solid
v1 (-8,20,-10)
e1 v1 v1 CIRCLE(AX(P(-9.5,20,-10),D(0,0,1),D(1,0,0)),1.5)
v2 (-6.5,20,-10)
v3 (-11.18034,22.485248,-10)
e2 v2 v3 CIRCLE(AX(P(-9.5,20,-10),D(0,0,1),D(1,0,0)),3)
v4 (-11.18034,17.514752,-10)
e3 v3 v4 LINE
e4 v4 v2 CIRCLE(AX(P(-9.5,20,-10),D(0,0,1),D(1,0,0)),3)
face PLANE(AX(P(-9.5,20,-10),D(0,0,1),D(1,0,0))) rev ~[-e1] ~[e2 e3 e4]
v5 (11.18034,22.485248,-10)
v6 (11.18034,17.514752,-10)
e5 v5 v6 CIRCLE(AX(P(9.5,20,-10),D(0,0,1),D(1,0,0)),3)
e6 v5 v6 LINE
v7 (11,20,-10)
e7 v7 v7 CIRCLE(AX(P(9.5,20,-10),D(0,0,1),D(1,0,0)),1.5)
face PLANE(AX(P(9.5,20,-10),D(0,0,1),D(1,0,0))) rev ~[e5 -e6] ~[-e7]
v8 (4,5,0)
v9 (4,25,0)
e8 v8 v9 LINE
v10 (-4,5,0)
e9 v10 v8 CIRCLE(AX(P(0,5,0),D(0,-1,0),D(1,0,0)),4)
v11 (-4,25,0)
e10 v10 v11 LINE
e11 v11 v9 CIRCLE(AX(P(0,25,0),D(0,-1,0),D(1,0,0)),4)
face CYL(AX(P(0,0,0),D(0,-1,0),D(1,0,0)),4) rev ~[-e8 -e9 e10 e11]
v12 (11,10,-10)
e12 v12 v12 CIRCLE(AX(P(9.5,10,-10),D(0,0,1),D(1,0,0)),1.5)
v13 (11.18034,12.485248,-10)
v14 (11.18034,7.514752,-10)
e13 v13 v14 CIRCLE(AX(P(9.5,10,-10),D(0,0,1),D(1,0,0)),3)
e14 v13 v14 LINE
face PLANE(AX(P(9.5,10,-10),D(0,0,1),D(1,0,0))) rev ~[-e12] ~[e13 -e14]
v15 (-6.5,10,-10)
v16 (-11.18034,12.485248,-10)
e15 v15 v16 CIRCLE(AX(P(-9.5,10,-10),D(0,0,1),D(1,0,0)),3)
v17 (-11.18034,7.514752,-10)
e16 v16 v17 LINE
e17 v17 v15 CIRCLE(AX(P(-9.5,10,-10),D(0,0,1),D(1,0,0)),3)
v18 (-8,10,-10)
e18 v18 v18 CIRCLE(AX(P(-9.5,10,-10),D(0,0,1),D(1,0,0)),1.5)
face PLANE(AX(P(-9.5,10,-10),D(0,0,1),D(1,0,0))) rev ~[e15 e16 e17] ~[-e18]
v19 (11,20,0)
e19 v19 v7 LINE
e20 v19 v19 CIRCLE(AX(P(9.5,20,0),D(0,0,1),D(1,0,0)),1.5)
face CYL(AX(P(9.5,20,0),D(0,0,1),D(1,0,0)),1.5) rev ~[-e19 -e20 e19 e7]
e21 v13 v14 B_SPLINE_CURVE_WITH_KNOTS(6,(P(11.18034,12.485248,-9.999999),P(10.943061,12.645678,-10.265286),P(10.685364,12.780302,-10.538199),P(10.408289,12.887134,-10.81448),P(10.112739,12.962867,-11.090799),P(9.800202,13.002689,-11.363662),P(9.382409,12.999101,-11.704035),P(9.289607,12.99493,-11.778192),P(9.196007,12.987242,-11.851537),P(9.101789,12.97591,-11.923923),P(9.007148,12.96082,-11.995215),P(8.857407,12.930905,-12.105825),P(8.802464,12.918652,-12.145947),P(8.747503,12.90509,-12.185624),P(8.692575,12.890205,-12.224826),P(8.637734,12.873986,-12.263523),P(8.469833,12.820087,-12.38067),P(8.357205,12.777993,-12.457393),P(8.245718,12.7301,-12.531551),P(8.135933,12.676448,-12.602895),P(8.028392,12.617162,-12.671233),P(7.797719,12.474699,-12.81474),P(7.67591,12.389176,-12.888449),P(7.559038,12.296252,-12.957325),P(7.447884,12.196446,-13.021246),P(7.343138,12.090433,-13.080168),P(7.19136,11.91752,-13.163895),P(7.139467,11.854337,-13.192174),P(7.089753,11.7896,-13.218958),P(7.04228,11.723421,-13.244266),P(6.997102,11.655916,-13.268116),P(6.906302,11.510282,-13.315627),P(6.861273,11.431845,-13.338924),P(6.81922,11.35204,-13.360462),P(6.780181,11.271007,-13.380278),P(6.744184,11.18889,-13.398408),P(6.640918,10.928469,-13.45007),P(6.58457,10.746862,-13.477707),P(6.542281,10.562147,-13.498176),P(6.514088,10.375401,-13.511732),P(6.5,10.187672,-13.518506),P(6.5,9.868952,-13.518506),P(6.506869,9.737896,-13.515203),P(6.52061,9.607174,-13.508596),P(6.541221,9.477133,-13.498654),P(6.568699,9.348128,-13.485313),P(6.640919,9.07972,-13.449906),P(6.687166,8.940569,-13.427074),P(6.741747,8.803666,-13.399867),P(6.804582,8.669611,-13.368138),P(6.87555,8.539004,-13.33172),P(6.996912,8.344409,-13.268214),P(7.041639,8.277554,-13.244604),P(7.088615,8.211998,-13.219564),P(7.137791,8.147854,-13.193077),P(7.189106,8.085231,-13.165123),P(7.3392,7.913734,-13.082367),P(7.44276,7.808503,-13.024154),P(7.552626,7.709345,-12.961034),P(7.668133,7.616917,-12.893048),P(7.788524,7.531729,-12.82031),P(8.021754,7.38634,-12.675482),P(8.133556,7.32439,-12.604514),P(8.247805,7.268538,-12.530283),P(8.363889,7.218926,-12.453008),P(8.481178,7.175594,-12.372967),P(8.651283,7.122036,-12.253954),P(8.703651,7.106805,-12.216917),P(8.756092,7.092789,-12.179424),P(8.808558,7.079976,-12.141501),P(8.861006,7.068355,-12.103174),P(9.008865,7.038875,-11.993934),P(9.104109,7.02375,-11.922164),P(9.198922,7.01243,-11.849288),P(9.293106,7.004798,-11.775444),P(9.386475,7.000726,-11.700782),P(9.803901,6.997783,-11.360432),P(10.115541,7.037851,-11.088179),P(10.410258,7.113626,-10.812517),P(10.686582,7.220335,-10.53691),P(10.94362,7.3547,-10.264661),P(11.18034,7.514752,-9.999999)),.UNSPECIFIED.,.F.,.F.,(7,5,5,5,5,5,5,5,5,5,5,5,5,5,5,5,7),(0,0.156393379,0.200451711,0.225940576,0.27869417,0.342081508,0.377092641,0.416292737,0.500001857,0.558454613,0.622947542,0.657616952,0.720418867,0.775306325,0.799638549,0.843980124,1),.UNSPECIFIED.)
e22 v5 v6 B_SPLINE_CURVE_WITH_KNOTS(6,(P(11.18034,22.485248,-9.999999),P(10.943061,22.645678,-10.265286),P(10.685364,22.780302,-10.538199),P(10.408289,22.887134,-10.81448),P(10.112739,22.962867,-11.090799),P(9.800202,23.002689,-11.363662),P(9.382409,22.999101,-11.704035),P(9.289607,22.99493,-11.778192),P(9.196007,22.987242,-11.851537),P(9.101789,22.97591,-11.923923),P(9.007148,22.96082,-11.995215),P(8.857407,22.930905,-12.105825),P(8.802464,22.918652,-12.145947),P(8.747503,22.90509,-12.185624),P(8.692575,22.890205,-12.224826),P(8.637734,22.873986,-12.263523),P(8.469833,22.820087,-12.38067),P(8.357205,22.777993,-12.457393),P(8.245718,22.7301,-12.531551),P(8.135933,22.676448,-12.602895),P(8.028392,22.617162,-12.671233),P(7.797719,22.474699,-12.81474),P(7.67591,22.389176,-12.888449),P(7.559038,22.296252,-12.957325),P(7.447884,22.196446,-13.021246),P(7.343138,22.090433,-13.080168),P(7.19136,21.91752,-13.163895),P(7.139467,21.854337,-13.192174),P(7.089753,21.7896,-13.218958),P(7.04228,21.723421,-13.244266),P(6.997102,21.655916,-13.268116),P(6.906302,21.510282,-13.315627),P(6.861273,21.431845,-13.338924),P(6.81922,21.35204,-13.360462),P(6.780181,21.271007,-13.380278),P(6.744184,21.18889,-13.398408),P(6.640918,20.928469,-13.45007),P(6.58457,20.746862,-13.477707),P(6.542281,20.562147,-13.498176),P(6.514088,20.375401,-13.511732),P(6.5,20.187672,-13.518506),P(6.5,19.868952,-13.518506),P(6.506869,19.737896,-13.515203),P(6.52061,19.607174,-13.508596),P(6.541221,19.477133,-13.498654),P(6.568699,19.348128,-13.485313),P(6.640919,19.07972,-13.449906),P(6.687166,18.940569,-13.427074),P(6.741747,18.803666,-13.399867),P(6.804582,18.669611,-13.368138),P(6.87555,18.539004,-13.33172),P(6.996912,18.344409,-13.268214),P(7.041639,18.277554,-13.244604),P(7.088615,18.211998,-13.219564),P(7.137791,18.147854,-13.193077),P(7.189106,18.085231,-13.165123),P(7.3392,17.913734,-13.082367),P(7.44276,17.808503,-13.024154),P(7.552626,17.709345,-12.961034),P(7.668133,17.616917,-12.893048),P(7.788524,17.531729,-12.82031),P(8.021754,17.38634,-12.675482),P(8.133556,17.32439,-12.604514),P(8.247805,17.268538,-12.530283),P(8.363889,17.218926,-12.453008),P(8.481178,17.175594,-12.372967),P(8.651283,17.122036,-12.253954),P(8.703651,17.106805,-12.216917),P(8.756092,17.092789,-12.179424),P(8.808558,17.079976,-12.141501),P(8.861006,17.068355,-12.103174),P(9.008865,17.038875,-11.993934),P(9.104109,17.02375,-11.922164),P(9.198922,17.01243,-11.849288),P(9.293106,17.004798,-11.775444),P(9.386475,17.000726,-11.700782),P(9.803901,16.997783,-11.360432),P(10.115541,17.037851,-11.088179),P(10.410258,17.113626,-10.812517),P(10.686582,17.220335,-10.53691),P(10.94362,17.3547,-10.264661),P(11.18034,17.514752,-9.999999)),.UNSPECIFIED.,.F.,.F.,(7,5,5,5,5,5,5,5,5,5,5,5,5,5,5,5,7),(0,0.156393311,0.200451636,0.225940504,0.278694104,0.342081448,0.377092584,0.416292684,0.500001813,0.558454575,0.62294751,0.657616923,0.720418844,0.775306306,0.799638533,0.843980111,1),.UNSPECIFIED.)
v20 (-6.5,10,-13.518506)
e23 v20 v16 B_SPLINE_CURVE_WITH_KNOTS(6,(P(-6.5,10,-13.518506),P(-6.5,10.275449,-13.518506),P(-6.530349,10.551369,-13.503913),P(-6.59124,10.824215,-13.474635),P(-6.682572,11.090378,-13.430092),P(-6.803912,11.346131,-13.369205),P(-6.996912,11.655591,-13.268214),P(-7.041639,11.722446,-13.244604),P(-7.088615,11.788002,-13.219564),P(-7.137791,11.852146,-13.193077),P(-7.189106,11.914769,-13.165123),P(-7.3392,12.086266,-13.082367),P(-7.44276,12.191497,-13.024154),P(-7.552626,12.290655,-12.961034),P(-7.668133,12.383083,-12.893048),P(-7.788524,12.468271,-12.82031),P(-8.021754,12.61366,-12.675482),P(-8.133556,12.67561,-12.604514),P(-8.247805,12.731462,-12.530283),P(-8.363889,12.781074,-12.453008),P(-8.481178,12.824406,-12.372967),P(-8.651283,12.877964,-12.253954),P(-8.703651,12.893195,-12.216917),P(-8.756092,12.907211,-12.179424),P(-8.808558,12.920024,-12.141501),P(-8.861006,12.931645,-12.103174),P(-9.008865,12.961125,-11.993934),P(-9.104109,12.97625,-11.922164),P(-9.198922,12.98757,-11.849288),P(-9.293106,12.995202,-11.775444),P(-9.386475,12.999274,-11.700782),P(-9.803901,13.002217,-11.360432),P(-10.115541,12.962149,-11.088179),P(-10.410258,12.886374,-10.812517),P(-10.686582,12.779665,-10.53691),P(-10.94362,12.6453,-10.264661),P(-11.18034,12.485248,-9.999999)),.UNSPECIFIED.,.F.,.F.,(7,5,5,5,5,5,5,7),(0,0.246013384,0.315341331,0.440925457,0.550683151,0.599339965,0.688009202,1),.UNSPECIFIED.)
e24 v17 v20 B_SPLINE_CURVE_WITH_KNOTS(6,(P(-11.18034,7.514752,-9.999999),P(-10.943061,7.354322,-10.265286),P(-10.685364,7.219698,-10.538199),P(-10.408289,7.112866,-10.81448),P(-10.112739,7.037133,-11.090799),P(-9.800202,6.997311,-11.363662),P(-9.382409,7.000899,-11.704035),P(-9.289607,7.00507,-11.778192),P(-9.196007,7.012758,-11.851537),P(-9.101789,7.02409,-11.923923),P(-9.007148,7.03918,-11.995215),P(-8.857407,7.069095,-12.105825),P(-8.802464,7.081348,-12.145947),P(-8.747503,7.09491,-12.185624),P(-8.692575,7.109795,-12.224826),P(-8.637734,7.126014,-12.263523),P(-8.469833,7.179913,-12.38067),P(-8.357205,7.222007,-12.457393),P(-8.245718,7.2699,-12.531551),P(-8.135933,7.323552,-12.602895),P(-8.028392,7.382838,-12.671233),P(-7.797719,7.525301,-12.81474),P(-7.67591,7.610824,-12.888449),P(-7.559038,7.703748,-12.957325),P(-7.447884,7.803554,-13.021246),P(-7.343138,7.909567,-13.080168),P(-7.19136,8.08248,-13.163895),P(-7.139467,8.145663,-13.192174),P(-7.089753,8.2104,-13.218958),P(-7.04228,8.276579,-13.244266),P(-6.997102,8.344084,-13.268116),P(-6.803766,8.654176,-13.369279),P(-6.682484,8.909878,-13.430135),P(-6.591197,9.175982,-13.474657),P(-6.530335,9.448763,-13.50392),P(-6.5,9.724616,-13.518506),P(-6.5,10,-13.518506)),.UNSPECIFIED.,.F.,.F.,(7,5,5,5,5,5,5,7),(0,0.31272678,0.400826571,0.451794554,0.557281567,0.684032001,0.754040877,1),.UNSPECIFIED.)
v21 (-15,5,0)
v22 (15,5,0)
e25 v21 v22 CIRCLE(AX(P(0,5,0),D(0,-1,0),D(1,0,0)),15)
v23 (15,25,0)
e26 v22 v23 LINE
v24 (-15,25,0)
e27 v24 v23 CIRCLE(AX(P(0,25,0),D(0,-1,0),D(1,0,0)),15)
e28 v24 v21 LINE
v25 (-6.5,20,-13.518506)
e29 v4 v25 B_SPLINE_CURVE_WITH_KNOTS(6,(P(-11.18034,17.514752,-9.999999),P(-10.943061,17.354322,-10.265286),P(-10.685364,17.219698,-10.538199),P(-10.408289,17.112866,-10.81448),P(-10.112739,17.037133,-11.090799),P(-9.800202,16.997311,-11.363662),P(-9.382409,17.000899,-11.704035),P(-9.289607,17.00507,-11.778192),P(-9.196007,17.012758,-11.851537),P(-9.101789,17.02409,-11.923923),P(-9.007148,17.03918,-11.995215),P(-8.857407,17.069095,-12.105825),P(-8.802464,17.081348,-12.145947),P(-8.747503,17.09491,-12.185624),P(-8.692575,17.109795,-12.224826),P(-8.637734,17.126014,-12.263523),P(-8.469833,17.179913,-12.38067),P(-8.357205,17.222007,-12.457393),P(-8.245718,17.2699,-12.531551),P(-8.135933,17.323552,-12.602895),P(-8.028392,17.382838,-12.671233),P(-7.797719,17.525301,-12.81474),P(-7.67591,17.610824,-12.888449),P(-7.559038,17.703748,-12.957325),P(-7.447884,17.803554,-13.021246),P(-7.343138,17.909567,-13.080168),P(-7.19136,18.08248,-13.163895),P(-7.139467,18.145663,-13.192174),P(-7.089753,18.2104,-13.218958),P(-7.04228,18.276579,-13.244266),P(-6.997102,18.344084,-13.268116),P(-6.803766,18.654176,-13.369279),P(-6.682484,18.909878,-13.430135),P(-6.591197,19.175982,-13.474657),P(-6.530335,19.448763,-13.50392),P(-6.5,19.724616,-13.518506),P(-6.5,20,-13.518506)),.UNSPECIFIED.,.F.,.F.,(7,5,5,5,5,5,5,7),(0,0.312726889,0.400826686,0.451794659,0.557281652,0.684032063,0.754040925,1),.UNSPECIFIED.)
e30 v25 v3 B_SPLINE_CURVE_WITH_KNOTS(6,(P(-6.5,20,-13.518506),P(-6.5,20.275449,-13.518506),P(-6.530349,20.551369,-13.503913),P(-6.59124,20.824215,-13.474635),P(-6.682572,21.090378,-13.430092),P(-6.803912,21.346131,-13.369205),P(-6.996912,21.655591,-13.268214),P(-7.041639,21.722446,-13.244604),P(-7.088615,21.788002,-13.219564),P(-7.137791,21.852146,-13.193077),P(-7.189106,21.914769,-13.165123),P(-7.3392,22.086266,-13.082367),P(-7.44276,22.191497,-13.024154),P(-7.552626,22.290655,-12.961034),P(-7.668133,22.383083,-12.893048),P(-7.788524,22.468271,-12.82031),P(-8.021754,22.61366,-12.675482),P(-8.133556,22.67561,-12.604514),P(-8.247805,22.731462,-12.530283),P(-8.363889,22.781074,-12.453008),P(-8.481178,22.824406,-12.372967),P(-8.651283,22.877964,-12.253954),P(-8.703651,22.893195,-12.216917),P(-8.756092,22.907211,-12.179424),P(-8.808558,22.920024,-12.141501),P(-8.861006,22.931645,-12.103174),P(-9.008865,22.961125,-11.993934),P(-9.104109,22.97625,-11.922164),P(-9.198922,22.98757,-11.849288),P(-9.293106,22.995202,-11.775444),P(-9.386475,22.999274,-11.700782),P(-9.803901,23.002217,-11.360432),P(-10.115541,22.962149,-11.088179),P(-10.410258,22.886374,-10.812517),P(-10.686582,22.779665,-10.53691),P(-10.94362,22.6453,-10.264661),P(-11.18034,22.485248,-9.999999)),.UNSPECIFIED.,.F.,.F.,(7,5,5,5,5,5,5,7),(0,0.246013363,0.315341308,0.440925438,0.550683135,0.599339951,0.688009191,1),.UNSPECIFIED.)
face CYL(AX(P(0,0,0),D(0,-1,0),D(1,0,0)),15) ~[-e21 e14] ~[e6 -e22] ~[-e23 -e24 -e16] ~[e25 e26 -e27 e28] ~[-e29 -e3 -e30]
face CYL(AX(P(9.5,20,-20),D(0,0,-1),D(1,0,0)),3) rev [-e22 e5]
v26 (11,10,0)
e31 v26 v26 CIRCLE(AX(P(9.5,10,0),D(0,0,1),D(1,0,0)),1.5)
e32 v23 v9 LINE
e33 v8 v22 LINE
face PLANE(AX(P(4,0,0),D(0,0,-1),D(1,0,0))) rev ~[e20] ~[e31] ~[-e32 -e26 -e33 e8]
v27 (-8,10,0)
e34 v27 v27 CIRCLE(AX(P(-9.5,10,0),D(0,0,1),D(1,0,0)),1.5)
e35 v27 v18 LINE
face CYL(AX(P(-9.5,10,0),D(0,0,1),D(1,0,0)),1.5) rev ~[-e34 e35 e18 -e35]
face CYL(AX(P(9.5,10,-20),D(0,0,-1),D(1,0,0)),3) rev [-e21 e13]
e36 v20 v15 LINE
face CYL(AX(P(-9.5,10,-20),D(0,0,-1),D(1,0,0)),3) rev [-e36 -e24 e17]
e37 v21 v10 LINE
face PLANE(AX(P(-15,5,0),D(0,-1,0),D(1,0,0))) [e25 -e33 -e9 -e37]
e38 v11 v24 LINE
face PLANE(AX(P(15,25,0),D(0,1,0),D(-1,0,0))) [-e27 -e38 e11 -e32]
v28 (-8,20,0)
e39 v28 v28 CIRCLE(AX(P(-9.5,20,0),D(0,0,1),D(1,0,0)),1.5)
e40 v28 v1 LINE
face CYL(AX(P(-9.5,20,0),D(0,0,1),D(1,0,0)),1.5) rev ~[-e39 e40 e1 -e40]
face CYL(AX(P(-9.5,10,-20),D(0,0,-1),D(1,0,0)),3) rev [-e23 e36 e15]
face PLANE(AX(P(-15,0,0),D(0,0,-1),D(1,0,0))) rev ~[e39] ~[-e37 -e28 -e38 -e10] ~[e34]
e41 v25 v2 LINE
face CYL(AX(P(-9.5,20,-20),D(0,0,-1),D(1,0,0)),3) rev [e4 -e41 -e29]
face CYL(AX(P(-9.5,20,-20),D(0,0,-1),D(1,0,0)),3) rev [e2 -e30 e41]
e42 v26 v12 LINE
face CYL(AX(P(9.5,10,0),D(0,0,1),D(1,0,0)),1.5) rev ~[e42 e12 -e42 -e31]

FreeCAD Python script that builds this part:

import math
import FreeCAD as App
import Part
import Sketcher
Q = App.Units.Quantity


def add_polygon(sketch, points):
    """Adds a closed chain of lines whose ends are joined by coincident constraints."""
    first, n = sketch.GeometryCount, len(points)
    for a, b in zip(points, points[1:] + points[:1]):
        sketch.addGeometry(Part.LineSegment(App.Vector(*a, 0), App.Vector(*b, 0)), False)
    for i in range(n):
        sketch.addConstraint(Sketcher.Constraint("Coincident", first + i, 2, first + (i + 1) % n, 1))

doc = App.newDocument("Part")
body = doc.addObject("PartDesign::Body", "Body")

sketch1 = body.newObject("Sketcher::SketchObject", "Sketch")
sketch1.AttachmentSupport = (doc.getObject("XZ_Plane"), [""])
sketch1.MapMode = "FlatFace"
sketch1.addGeometry(Part.LineSegment(App.Vector(15, 0, 0), App.Vector(4, 0, 0)), False)
sketch1.addGeometry(Part.ArcOfCircle(Part.Circle(App.Vector(0, 0, 0), App.Vector(0, 0, 1), 4), math.radians(180), math.radians(360)), False)
sketch1.addGeometry(Part.LineSegment(App.Vector(-4, 0, 0), App.Vector(-15, 0, 0)), False)
sketch1.addGeometry(Part.ArcOfCircle(Part.Circle(App.Vector(0, 0, 0), App.Vector(0, 0, 1), 15), math.radians(180), math.radians(360)), False)
sketch1.addConstraint(Sketcher.Constraint("Coincident", 0, 2, 1, 2))
sketch1.addConstraint(Sketcher.Constraint("Coincident", 1, 1, 2, 1))
sketch1.addConstraint(Sketcher.Constraint("Coincident", 2, 2, 3, 1))
sketch1.addConstraint(Sketcher.Constraint("Coincident", 3, 2, 0, 1))
sketch1.addConstraint(Sketcher.Constraint("Horizontal", 0))
sketch1.addConstraint(Sketcher.Constraint("Horizontal", 2))
sketch1.addConstraint(Sketcher.Constraint("Coincident", 1, 3, -1, 1))
sketch1.addConstraint(Sketcher.Constraint("Coincident", 3, 3, -1, 1))
sketch1.addConstraint(Sketcher.Constraint("PointOnObject", 0, 2, -1))
sketch1.addConstraint(Sketcher.Constraint("PointOnObject", 1, 1, -1))
sketch1.addConstraint(Sketcher.Constraint("Radius", 1, Q("4 mm")))
sketch1.addConstraint(Sketcher.Constraint("Radius", 3, Q("15 mm")))
pad1 = body.newObject("PartDesign::Pad", "Pad")
pad1.Profile = sketch1
pad1.Length = 30
pad1.Reversed = True

sketch2 = body.newObject("Sketcher::SketchObject", "Sketch001")
sketch2.AttachmentSupport = (doc.getObject("XY_Plane"), [""])
sketch2.MapMode = "FlatFace"
add_polygon(sketch2, [(17, -5), (17, 35), (-17, 35), (-17, -5)])
add_polygon(sketch2, [(15, 25), (15, 5), (-15, 5), (-15, 25)])
sketch2.addConstraint(Sketcher.Constraint("Vertical", 0))
sketch2.addConstraint(Sketcher.Constraint("Horizontal", 1))
sketch2.addConstraint(Sketcher.Constraint("Vertical", 2))
sketch2.addConstraint(Sketcher.Constraint("Horizontal", 3))
sketch2.addConstraint(Sketcher.Constraint("Vertical", 4))
sketch2.addConstraint(Sketcher.Constraint("Horizontal", 5))
sketch2.addConstraint(Sketcher.Constraint("Vertical", 6))
sketch2.addConstraint(Sketcher.Constraint("Horizontal", 7))
sketch2.addConstraint(Sketcher.Constraint("DistanceX", 5, 2, 5, 1, Q("30 mm")))
sketch2.addConstraint(Sketcher.Constraint("DistanceY", 0, 1, 0, 2, Q("40 mm")))
sketch2.addConstraint(Sketcher.Constraint("DistanceY", 4, 2, 4, 1, Q("20 mm")))
sketch2.addConstraint(Sketcher.Constraint("DistanceY", -1, 1, 0, 2, Q("35 mm")))
sketch2.addConstraint(Sketcher.Constraint("DistanceX", -1, 1, 4, 2, Q("15 mm")))
sketch2.addConstraint(Sketcher.Constraint("DistanceY", -1, 1, 4, 2, Q("5 mm")))
sketch2.addConstraint(Sketcher.Constraint("DistanceX", 1, 2, 1, 1, Q("33.4458 mm")))
sketch2.addConstraint(Sketcher.Constraint("DistanceX", -1, 1, 0, 2, Q("16.723 mm")))
pocket1 = body.newObject("PartDesign::Pocket", "Pocket")
pocket1.Profile = sketch2
pocket1.Length = 40

sketch3 = body.newObject("Sketcher::SketchObject", "Sketch002")
sketch3.AttachmentSupport = (doc.getObject("XY_Plane"), [""])
sketch3.MapMode = "FlatFace"
sketch3.addGeometry(Part.Circle(App.Vector(-9.5, 20, 0), App.Vector(0, 0, 1), 1.5), False)
sketch3.addGeometry(Part.Circle(App.Vector(-9.5, 10, 0), App.Vector(0, 0, 1), 1.5), False)
sketch3.addGeometry(Part.Circle(App.Vector(9.5, 10, 0), App.Vector(0, 0, 1), 1.5), False)
sketch3.addGeometry(Part.Circle(App.Vector(9.5, 20, 0), App.Vector(0, 0, 1), 1.5), False)
sketch3.addConstraint(Sketcher.Constraint("Equal", 0, 1))
sketch3.addConstraint(Sketcher.Constraint("Equal", 1, 2))
sketch3.addConstraint(Sketcher.Constraint("Equal", 2, 3))
sketch3.addConstraint(Sketcher.Constraint("Symmetric", 1, 3, 2, 3, -2))
sketch3.addConstraint(Sketcher.Constraint("Symmetric", 0, 3, 3, 3, -2))
sketch3.addConstraint(Sketcher.Constraint("Vertical", 0, 3, 1, 3))
sketch3.addConstraint(Sketcher.Constraint("Diameter", 0, Q("3 mm")))
sketch3.addConstraint(Sketcher.Constraint("DistanceY", -1, 1, 0, 3, Q("20 mm")))
sketch3.addConstraint(Sketcher.Constraint("DistanceY", -1, 1, 1, 3, Q("10 mm")))
sketch3.addConstraint(Sketcher.Constraint("DistanceX", 1, 3, 2, 3, Q("19 mm")))
pocket2 = body.newObject("PartDesign::Pocket", "Pocket001")
pocket2.Profile = sketch3
pocket2.Length = 20

sketch4 = body.newObject("Sketcher::SketchObject", "Sketch003")
sketch4.AttachmentSupport = (doc.getObject("XY_Plane"), [""])
sketch4.MapMode = "FlatFace"
sketch4.AttachmentOffset = App.Placement(App.Vector(0, 0, -20), App.Rotation())
sketch4.addGeometry(Part.Circle(App.Vector(9.5, 20, 0), App.Vector(0, 0, 1), 3), False)
sketch4.addGeometry(Part.Circle(App.Vector(9.5, 10, 0), App.Vector(0, 0, 1), 3), False)
sketch4.addGeometry(Part.Circle(App.Vector(-9.5, 10, 0), App.Vector(0, 0, 1), 3), False)
sketch4.addGeometry(Part.Circle(App.Vector(-9.5, 20, 0), App.Vector(0, 0, 1), 3), False)
sketch4.addConstraint(Sketcher.Constraint("Equal", 0, 1))
sketch4.addConstraint(Sketcher.Constraint("Equal", 1, 2))
sketch4.addConstraint(Sketcher.Constraint("Equal", 2, 3))
sketch4.addConstraint(Sketcher.Constraint("Symmetric", 1, 3, 2, 3, -2))
sketch4.addConstraint(Sketcher.Constraint("Symmetric", 0, 3, 3, 3, -2))
sketch4.addConstraint(Sketcher.Constraint("Vertical", 0, 3, 1, 3))
sketch4.addConstraint(Sketcher.Constraint("Diameter", 0, Q("6 mm")))
sketch4.addConstraint(Sketcher.Constraint("DistanceY", -1, 1, 0, 3, Q("20 mm")))
sketch4.addConstraint(Sketcher.Constraint("DistanceY", -1, 1, 1, 3, Q("10 mm")))
sketch4.addConstraint(Sketcher.Constraint("DistanceX", 2, 3, 1, 3, Q("19 mm")))
pocket3 = body.newObject("PartDesign::Pocket", "Pocket002")
pocket3.Profile = sketch4
pocket3.Length = 10
pocket3.Reversed = True

doc.recompute()
